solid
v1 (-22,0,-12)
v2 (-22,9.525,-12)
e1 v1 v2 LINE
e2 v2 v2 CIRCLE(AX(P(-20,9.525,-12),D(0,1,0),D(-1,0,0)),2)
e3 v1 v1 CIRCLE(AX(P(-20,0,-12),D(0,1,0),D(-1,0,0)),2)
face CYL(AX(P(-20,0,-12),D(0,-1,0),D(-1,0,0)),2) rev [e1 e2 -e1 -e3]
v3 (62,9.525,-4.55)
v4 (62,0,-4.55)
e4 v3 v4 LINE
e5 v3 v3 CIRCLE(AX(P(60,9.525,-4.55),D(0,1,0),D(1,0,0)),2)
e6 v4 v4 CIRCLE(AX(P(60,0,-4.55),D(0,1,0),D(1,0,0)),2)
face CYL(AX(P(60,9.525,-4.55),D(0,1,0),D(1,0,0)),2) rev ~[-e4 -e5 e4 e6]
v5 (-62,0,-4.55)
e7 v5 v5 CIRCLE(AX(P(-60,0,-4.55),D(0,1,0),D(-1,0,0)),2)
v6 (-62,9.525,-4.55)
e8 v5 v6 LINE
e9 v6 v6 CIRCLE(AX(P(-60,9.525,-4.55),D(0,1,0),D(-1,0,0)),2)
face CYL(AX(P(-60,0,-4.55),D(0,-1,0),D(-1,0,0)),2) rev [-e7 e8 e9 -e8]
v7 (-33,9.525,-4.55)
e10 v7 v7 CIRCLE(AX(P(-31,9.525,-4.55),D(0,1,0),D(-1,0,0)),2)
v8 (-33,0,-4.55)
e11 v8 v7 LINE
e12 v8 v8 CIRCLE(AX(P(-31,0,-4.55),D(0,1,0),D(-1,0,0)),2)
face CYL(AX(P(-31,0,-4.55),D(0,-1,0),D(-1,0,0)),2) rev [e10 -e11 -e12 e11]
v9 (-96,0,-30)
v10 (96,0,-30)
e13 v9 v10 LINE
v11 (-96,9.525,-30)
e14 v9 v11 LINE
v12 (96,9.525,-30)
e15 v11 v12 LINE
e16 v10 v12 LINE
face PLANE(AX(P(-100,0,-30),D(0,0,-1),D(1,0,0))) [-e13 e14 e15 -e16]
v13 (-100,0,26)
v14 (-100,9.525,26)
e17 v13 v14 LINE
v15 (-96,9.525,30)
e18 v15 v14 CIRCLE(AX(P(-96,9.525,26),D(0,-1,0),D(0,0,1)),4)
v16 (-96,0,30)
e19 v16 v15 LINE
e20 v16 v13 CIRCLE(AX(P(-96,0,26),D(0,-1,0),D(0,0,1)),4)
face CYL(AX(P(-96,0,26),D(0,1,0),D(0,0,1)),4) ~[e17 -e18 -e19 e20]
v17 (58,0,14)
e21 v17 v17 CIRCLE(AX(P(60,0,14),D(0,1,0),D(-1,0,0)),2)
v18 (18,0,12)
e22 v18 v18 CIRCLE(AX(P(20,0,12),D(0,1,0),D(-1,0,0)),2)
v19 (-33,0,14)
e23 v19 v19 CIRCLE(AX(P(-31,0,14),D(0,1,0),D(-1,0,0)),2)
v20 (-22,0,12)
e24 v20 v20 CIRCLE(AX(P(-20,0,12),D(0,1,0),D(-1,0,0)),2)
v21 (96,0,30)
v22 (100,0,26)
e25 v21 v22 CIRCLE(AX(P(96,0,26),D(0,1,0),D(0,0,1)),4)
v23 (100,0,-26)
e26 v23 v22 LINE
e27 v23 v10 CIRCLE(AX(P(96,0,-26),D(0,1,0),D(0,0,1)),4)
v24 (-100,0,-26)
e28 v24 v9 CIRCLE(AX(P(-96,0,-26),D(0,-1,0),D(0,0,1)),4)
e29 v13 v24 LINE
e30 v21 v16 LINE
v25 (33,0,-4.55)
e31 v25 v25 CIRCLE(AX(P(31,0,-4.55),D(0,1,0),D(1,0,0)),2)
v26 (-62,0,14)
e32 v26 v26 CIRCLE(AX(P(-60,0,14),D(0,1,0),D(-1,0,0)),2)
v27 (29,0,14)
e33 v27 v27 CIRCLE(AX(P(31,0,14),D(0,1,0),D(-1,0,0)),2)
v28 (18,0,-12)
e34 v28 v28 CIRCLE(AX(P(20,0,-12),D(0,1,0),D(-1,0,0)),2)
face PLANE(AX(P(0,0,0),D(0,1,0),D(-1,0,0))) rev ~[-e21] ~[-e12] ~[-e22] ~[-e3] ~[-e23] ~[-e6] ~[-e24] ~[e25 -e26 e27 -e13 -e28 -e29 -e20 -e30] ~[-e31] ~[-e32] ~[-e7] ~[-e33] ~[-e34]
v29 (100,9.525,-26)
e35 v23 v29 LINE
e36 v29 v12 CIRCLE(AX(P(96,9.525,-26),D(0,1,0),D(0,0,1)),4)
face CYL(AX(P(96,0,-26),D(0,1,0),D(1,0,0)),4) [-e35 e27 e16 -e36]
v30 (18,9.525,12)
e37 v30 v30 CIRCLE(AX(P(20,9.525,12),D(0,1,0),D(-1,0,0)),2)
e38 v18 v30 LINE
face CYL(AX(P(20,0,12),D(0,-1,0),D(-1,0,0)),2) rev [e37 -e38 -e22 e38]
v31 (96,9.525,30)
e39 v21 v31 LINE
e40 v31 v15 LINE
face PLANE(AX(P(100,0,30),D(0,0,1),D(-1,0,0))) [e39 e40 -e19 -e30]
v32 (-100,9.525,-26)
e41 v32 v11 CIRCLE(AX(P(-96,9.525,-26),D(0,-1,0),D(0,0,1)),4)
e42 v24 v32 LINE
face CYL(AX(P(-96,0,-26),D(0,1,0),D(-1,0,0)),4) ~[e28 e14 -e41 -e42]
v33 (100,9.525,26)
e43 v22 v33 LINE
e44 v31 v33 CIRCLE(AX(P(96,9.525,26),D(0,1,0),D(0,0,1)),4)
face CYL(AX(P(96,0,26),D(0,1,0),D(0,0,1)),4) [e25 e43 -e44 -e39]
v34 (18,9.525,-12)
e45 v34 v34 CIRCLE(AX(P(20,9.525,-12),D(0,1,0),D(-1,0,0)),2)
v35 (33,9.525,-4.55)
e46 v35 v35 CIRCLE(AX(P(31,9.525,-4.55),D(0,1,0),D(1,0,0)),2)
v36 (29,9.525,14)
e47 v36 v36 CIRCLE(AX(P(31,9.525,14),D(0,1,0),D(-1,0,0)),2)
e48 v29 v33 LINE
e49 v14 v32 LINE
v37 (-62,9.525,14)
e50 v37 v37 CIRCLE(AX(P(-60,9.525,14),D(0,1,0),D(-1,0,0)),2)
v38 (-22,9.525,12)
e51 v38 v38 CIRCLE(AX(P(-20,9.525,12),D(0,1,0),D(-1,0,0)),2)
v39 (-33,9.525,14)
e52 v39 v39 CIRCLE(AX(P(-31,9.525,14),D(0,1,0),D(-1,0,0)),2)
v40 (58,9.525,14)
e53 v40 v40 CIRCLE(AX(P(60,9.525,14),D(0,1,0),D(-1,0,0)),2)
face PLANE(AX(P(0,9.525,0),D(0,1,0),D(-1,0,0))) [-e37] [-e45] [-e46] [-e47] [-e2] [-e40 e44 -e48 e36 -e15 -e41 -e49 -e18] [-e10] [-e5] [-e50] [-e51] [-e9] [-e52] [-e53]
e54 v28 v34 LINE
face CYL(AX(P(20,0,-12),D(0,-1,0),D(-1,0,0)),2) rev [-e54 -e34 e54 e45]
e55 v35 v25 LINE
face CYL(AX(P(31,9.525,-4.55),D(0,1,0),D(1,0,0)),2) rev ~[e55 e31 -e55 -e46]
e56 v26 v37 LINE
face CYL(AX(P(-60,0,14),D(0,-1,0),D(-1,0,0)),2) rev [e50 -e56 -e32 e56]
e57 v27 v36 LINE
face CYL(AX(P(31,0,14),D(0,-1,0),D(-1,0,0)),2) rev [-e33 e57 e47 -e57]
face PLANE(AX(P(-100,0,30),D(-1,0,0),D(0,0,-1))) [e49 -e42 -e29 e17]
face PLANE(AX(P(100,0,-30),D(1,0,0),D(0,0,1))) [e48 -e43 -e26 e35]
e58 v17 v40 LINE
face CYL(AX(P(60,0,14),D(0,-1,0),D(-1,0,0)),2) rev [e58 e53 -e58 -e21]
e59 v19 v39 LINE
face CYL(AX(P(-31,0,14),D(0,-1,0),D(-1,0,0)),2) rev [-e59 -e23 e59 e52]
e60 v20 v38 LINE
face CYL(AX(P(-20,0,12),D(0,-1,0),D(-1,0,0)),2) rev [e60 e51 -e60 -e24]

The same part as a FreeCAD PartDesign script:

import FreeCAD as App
import Part
import Sketcher


def edges_at(feature, points):
    """Names of the edges that pass closest to the given points."""
    edges = feature.Shape.Edges
    near = lambda p: min(range(len(edges)), key=lambda i: edges[i].distToShape(Part.Vertex(*p))[0])
    return sorted({f"Edge{near(p) + 1}" for p in points})

doc = App.newDocument("Part")
body = doc.addObject("PartDesign::Body", "Body")

sketch1 = body.newObject("Sketcher::SketchObject", "Sketch")
sketch1.AttachmentSupport = (doc.getObject("XZ_Plane"), [""])
sketch1.MapMode = "FlatFace"
sketch1.addGeometry(Part.LineSegment(App.Vector(-100, 30, 0), App.Vector(100, 30, 0)), False)
sketch1.addGeometry(Part.LineSegment(App.Vector(100, 30, 0), App.Vector(100, -30, 0)), False)
sketch1.addGeometry(Part.LineSegment(App.Vector(100, -30, 0), App.Vector(-100, -30, 0)), False)
sketch1.addGeometry(Part.LineSegment(App.Vector(-100, -30, 0), App.Vector(-100, 30, 0)), False)
sketch1.addGeometry(Part.Circle(App.Vector(20, -12, 0), App.Vector(0, 0, 1), 2), False)
sketch1.addGeometry(Part.Circle(App.Vector(-20, -12, 0), App.Vector(0, 0, 1), 2), False)
sketch1.addGeometry(Part.Circle(App.Vector(-31, -4.5, 0), App.Vector(0, 0, 1), 2), False)
sketch1.addGeometry(Part.Circle(App.Vector(-60, -4.5, 0), App.Vector(0, 0, 1), 2), False)
sketch1.addGeometry(Part.Circle(App.Vector(60, 14, 0), App.Vector(0, 0, 1), 2), False)
sketch1.addGeometry(Part.Circle(App.Vector(31, 14, 0), App.Vector(0, 0, 1), 2), False)
sketch1.addGeometry(Part.Circle(App.Vector(20, 12, 0), App.Vector(0, 0, 1), 2), False)
sketch1.addGeometry(Part.Circle(App.Vector(-20, 12, 0), App.Vector(0, 0, 1), 2), False)
sketch1.addGeometry(Part.Circle(App.Vector(-31, 14, 0), App.Vector(0, 0, 1), 2), False)
sketch1.addGeometry(Part.Circle(App.Vector(-60, 14, 0), App.Vector(0, 0, 1), 2), False)
sketch1.addConstraint(Sketcher.Constraint("Coincident", 0, 2, 1, 1))
sketch1.addConstraint(Sketcher.Constraint("Coincident", 1, 2, 2, 1))
sketch1.addConstraint(Sketcher.Constraint("Coincident", 2, 2, 3, 1))
sketch1.addConstraint(Sketcher.Constraint("Coincident", 3, 2, 0, 1))
sketch1.addConstraint(Sketcher.Constraint("Horizontal", 0))
sketch1.addConstraint(Sketcher.Constraint("Vertical", 1))
sketch1.addConstraint(Sketcher.Constraint("Horizontal", 2))
sketch1.addConstraint(Sketcher.Constraint("Vertical", 3))
sketch1.addConstraint(Sketcher.Constraint("Equal", 4, 5))
sketch1.addConstraint(Sketcher.Constraint("Equal", 5, 6))
sketch1.addConstraint(Sketcher.Constraint("Equal", 6, 7))
sketch1.addConstraint(Sketcher.Constraint("Equal", 7, 8))
sketch1.addConstraint(Sketcher.Constraint("Equal", 8, 9))
sketch1.addConstraint(Sketcher.Constraint("Equal", 9, 10))
sketch1.addConstraint(Sketcher.Constraint("Equal", 10, 11))
sketch1.addConstraint(Sketcher.Constraint("Equal", 11, 12))
sketch1.addConstraint(Sketcher.Constraint("Equal", 12, 13))
sketch1.addConstraint(Sketcher.Constraint("Symmetric", 5, 3, 10, 3, -1, 1))
sketch1.addConstraint(Sketcher.Constraint("Symmetric", 4, 3, 11, 3, -1, 1))
sketch1.addConstraint(Sketcher.Constraint("Symmetric", 0, 2, 2, 2, -1, 1))
sketch1.addConstraint(Sketcher.Constraint("Symmetric", 4, 3, 5, 3, -2))
sketch1.addConstraint(Sketcher.Constraint("Symmetric", 9, 3, 12, 3, -2))
sketch1.addConstraint(Sketcher.Constraint("Symmetric", 8, 3, 13, 3, -2))
sketch1.addConstraint(Sketcher.Constraint("Horizontal", 6, 3, 7, 3))
sketch1.addConstraint(Sketcher.Constraint("Horizontal", 8, 3, 9, 3))
sketch1.addConstraint(Sketcher.Constraint("Vertical", 6, 3, 12, 3))
sketch1.addConstraint(Sketcher.Constraint("Vertical", 7, 3, 13, 3))
sketch1.addConstraint(Sketcher.Constraint("Diameter", 4, 4.0))
sketch1.addConstraint(Sketcher.Constraint("DistanceX", 0, 1, 0, 2, 200.0))
sketch1.addConstraint(Sketcher.Constraint("DistanceY", 1, 2, 1, 1, 60.0))
sketch1.addConstraint(Sketcher.Constraint("DistanceX", 7, 3, -1, 1, 60.0))
sketch1.addConstraint(Sketcher.Constraint("DistanceY", 6, 3, 8, 3, 18.55))
sketch1.addConstraint(Sketcher.Constraint("DistanceX", -1, 1, 4, 3, 20.0))
sketch1.addConstraint(Sketcher.Constraint("DistanceY", 4, 3, -1, 1, 12.0))
sketch1.addConstraint(Sketcher.Constraint("DistanceX", 6, 3, -1, 1, 31.0))
sketch1.addConstraint(Sketcher.Constraint("DistanceY", -1, 1, 8, 3, 14.0))
pad1 = body.newObject("PartDesign::Pad", "Pad")
pad1.Profile = sketch1
pad1.Length = 9.525
pad1.Reversed = True
doc.recompute()

fillet = body.newObject("PartDesign::Fillet", "Fillet")
fillet.Base = (pad1, edges_at(pad1, [
    (100, 4.763, -30),
    (-100, 4.763, -30),
    (100, 4.763, 30),
    (-100, 4.763, 30),
]))
fillet.Radius = 4

sketch2 = body.newObject("Sketcher::SketchObject", "Sketch001")
sketch2.AttachmentSupport = (doc.getObject("XZ_Plane"), [""])
sketch2.MapMode = "FlatFace"
sketch2.AttachmentOffset = App.Placement(App.Vector(0, 0, -9.525), App.Rotation())
sketch2.addGeometry(Part.Circle(App.Vector(31, -4.5, 0), App.Vector(0, 0, 1), 2), False)
sketch2.addGeometry(Part.Circle(App.Vector(60, -4.5, 0), App.Vector(0, 0, 1), 2), False)
sketch2.addConstraint(Sketcher.Constraint("Equal", 0, 1))
sketch2.addConstraint(Sketcher.Constraint("Horizontal", 0, 3, 1, 3))
sketch2.addConstraint(Sketcher.Constraint("Diameter", 0, 4.0))
sketch2.addConstraint(Sketcher.Constraint("DistanceX", -1, 1, 0, 3, 31.0))
sketch2.addConstraint(Sketcher.Constraint("DistanceX", -1, 1, 1, 3, 60.0))
sketch2.addConstraint(Sketcher.Constraint("DistanceY", 0, 3, -1, 1, 4.55))
pocket1 = body.newObject("PartDesign::Pocket", "Pocket")
pocket1.Profile = sketch2
pocket1.Length = 9.525
pocket1.Reversed = True

doc.recompute()
